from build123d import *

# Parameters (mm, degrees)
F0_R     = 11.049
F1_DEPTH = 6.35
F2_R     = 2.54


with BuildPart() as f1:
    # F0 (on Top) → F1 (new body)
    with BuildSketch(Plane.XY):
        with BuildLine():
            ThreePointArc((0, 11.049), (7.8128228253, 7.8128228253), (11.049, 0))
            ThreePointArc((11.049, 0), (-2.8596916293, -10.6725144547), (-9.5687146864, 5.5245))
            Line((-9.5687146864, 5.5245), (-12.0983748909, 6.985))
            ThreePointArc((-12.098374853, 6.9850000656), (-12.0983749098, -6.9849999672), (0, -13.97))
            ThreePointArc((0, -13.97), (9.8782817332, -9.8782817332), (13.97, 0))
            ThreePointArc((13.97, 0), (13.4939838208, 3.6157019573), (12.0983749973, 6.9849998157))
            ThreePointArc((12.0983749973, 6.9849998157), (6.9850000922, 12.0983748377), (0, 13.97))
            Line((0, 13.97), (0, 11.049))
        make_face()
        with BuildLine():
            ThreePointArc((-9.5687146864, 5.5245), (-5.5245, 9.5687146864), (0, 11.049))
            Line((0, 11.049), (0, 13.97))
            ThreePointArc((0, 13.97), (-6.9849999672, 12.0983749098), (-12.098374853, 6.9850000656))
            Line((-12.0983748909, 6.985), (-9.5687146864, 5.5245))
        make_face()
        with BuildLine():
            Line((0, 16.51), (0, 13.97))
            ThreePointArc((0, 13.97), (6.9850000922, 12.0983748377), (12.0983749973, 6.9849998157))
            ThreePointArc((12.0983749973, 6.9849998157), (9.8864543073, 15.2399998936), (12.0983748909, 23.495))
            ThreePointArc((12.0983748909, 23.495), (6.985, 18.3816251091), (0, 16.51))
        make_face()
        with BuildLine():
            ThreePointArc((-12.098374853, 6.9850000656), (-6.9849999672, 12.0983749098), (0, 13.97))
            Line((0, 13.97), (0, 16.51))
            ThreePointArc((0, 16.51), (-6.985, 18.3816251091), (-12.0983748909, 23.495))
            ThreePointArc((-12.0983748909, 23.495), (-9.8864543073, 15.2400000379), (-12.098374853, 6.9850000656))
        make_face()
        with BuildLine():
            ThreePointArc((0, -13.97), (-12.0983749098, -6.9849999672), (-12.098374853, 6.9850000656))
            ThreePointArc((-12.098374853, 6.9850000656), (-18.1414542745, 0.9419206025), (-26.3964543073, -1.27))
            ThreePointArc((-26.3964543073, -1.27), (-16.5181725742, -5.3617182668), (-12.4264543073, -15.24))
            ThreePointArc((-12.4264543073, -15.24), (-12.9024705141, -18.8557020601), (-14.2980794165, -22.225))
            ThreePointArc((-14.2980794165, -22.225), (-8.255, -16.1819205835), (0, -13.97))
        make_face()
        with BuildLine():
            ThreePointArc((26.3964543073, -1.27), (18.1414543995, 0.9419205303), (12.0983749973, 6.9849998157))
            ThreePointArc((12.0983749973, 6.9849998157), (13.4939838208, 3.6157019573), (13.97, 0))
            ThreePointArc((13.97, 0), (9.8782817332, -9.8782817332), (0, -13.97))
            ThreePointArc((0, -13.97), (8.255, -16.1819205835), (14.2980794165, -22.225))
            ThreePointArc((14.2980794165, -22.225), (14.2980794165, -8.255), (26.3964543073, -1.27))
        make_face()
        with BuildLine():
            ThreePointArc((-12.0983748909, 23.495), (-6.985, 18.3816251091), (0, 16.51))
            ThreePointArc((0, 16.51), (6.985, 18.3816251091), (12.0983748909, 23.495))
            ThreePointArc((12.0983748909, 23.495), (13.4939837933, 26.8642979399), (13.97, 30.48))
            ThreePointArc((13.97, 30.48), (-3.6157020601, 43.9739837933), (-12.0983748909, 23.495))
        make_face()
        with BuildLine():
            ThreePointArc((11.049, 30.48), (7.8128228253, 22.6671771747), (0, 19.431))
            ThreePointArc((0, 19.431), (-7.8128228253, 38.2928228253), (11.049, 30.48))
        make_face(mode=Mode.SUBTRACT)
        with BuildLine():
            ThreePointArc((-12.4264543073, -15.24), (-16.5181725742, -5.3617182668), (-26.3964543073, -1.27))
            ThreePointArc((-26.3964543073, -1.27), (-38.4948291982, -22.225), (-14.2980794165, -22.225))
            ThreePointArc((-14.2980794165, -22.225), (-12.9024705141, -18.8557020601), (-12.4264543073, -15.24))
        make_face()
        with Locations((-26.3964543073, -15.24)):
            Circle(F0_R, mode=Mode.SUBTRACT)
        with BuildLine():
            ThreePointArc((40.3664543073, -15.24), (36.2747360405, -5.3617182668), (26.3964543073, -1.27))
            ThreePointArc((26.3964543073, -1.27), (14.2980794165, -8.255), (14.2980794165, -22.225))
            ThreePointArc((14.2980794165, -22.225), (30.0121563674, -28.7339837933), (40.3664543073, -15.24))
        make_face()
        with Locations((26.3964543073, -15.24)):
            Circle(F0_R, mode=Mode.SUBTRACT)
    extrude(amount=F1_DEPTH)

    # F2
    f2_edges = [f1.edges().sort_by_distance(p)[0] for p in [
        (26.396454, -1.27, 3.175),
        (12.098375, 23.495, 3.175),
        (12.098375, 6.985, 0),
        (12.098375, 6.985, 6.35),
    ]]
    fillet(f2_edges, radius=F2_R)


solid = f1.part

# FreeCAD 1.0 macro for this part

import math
import FreeCAD as App
import Part
import Sketcher
from FreeCAD import Vector
Q = App.Units.Quantity


def edges_at(feature, points):
    """Names of the edges that pass closest to the given points."""
    edges = feature.Shape.Edges
    near = lambda p: min(range(len(edges)), key=lambda i: edges[i].distToShape(Part.Vertex(*p))[0])
    return sorted({f"Edge{near(p) + 1}" for p in points})

doc = App.newDocument("Part")
params = doc.addObject("Spreadsheet::Sheet", "Params")
for row, (alias, value) in enumerate([
    ("sketch1_diameter", "0.87 in"),
    ("sketch1_radius", "0.65 in"),
    ("sketch1_radius2", "0.55 in"),
    ("pad1_length", "0.25 in"),
    ("fillet_radius", "0.1 in"),
], start=1):
    params.set(f"A{row}", alias)
    params.set(f"B{row}", "=" + value)
    params.setAlias(f"B{row}", alias)

body = doc.addObject("PartDesign::Body", "Body")

# Sketch on XY plane
sketch1 = body.newObject("Sketcher::SketchObject", "Sketch")
sketch1.AttachmentSupport = (doc.getObject("XY_Plane"), [""])
sketch1.MapMode = "FlatFace"
sketch1.addGeometry([
    Part.ArcOfCircle(Part.Circle(Vector(-26, 15, 0), Vector(0, 0, 1), 17), math.radians(-30), math.radians(30)),  # 0
    Part.ArcOfCircle(Part.Circle(Vector(-26, 15, 0), Vector(0, 0, 1), 17), math.radians(-90), math.radians(-30)),  # 1
    Part.ArcOfCircle(Part.Circle(Vector(-26, -15, 0), Vector(0, 0, 1), 14), math.radians(90), math.radians(330)),  # 2
    Part.ArcOfCircle(Part.Circle(Vector(0, -30, 0), Vector(0, 0, 1), 17), math.radians(90), math.radians(150)),  # 3
    Part.ArcOfCircle(Part.Circle(Vector(0, -30, 0), Vector(0, 0, 1), 17), math.radians(30), math.radians(90)),  # 4
    Part.ArcOfCircle(Part.Circle(Vector(26, -15, 0), Vector(0, 0, 1), 14), math.radians(-150), math.radians(0)),  # 5
    Part.ArcOfCircle(Part.Circle(Vector(26, -15, 0), Vector(0, 0, 1), 14), math.radians(0), math.radians(90)),  # 6
    Part.ArcOfCircle(Part.Circle(Vector(26, 15, 0), Vector(0, 0, 1), 17), math.radians(-150), math.radians(-90)),  # 7
    Part.ArcOfCircle(Part.Circle(Vector(26, 15, 0), Vector(0, 0, 1), 17), math.radians(150), math.radians(210)),  # 8
    Part.ArcOfCircle(Part.Circle(Vector(0, 30, 0), Vector(0, 0, 1), 14), math.radians(-30), math.radians(0)),  # 9
    Part.ArcOfCircle(Part.Circle(Vector(0, 30, 0), Vector(0, 0, 1), 14), math.radians(0), math.radians(210)),  # 10
    Part.ArcOfCircle(Part.Circle(Vector(0, 0, 0), Vector(0, 0, 1), 11), math.radians(0), math.radians(90)),  # 11
    Part.ArcOfCircle(Part.Circle(Vector(0, 0, 0), Vector(0, 0, 1), 11), math.radians(90), math.radians(360)),  # 12
    Part.ArcOfCircle(Part.Circle(Vector(0, 30, 0), Vector(0, 0, 1), 11), math.radians(0), math.radians(270)),  # 13
    Part.ArcOfCircle(Part.Circle(Vector(0, 30, 0), Vector(0, 0, 1), 11), math.radians(-90), math.radians(0)),  # 14
    Part.Circle(Vector(26, -15, 0), Vector(0, 0, 1), 11),  # 15
    Part.Circle(Vector(-26, -15, 0), Vector(0, 0, 1), 11),  # 16
], False)
sketch1.addConstraint([
    Sketcher.Constraint("Tangent", 0, 1, 1, 2),
    Sketcher.Constraint("Tangent", 1, 1, 2, 1),
    Sketcher.Constraint("Tangent", 2, 2, 3, 2),
    Sketcher.Constraint("Tangent", 3, 1, 4, 2),
    Sketcher.Constraint("Tangent", 4, 1, 5, 1),
    Sketcher.Constraint("Tangent", 5, 2, 6, 1),
    Sketcher.Constraint("Tangent", 6, 2, 7, 2),
    Sketcher.Constraint("Tangent", 7, 1, 8, 2),
    Sketcher.Constraint("Tangent", 8, 1, 9, 1),
    Sketcher.Constraint("Tangent", 9, 2, 10, 1),
    Sketcher.Constraint("Tangent", 10, 2, 0, 2),
    Sketcher.Constraint("Tangent", 11, 1, 12, 2),
    Sketcher.Constraint("Coincident", 12, 1, 11, 2),
    Sketcher.Constraint("Tangent", 13, 1, 14, 2),
    Sketcher.Constraint("Coincident", 14, 1, 13, 2),
    Sketcher.Constraint("Coincident", 11, 3, -1, 1),
    Sketcher.Constraint("Coincident", 13, 3, 9, 3),
    Sketcher.Constraint("Coincident", 15, 3, 5, 3),
    Sketcher.Constraint("Coincident", 16, 3, 2, 3),
    Sketcher.Constraint("Equal", 0, 1),
    Sketcher.Constraint("Equal", 1, 3),
    Sketcher.Constraint("Equal", 3, 4),
    Sketcher.Constraint("Equal", 2, 5),
    Sketcher.Constraint("Equal", 5, 6),
    Sketcher.Constraint("Equal", 4, 7),
    Sketcher.Constraint("Equal", 7, 8),
    Sketcher.Constraint("Equal", 6, 9),
    Sketcher.Constraint("Equal", 9, 10),
    Sketcher.Constraint("Equal", 12, 13),
    Sketcher.Constraint("Equal", 14, 15),
    Sketcher.Constraint("Equal", 15, 16),
    Sketcher.Constraint("Symmetric", 0, 3, 5, 3, -1, 1),
    Sketcher.Constraint("Symmetric", 2, 3, 5, 3, -2),
    Sketcher.Constraint("Symmetric", 0, 1, 7, 1, -2),
    Sketcher.Constraint("PointOnObject", 3, 1, -2),
    Sketcher.Constraint("PointOnObject", 11, 1, -1),
    Sketcher.Constraint("PointOnObject", 12, 1, -2),
    Sketcher.Constraint("PointOnObject", 14, 1, -2),
    Sketcher.Constraint("Horizontal", 16, 3, 5, 2),
    Sketcher.Constraint("Horizontal", 14, 3, 9, 2),
    Sketcher.Constraint("Horizontal", 9, 2, 13, 1),
    Sketcher.Constraint("Vertical", 7, 1, 8, 1),
    Sketcher.Constraint("Diameter", 15, Q("0.87 in")),
    Sketcher.Constraint("Radius", 0, Q("0.65 in")),
    Sketcher.Constraint("Radius", 2, Q("0.55 in")),
    Sketcher.Constraint("DistanceY", 3, 3, -1, 1, Q("1.2 in")),
])
sketch1.setExpression("Constraints[42]", "Params.sketch1_diameter")
sketch1.setExpression("Constraints[43]", "Params.sketch1_radius")
sketch1.setExpression("Constraints[44]", "Params.sketch1_radius2")
pad1 = body.newObject("PartDesign::Pad", "Pad")
pad1.Profile = sketch1
pad1.setExpression("Length", "Params.pad1_length")
doc.recompute()

fillet = body.newObject("PartDesign::Fillet", "Fillet")
fillet.Base = (pad1, edges_at(pad1, [
    (26.396, -1.27, 3.175),
    (12.098, 23.495, 3.175),
    (9.886, 15.24, 0),
    (9.886, 15.24, 6.35),
]))
fillet.setExpression("Radius", "Params.fillet_radius")

doc.recompute()
